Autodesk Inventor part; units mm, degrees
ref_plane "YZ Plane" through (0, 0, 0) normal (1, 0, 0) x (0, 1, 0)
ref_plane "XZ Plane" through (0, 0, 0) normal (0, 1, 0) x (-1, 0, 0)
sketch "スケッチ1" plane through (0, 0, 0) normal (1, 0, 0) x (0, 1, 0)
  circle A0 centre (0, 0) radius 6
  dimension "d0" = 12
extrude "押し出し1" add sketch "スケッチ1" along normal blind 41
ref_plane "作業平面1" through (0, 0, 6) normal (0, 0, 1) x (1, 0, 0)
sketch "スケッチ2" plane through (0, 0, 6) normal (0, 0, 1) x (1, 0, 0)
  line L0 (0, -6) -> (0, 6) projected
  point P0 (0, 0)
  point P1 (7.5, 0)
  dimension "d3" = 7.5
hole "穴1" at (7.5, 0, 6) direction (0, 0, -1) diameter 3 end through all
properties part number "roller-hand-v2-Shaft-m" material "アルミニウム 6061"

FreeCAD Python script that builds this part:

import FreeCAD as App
import Part
import Sketcher

doc = App.newDocument("Part")
body = doc.addObject("PartDesign::Body", "Body")

# Sketch on YZ plane
sketch1 = doc.addObject("Sketcher::SketchObject", "Sketch")
body.addObject(sketch1)
sketch1.AttachmentSupport = (doc.YZ_Plane, [""])
sketch1.MapMode = "FlatFace"
sketch1.addGeometry(Part.Circle(App.Vector(0, 0, 0), App.Vector(0, 0, 1), 6), False)
sketch1.addConstraint([
    Sketcher.Constraint("Coincident", 0, 3, -1, 1),
    Sketcher.Constraint("Diameter", 0, 12.0),
])
pad1 = doc.addObject("PartDesign::Pad", "Pad")
body.addObject(pad1)
pad1.Profile = sketch1
pad1.Length = 41

# Sketch on XY plane
sketch2 = doc.addObject("Sketcher::SketchObject", "Sketch001")
body.addObject(sketch2)
sketch2.AttachmentSupport = (doc.XY_Plane, [""])
sketch2.MapMode = "FlatFace"
sketch2.AttachmentOffset = App.Placement(App.Vector(0, 0, 6), App.Rotation())
sketch2.addGeometry(Part.Circle(App.Vector(7.5, 0, 0), App.Vector(0, 0, 1), 1.5), False)
sketch2.addConstraint([
    Sketcher.Constraint("PointOnObject", 0, 3, -1),
    Sketcher.Constraint("Diameter", 0, 3.0),
    Sketcher.Constraint("DistanceX", -1, 1, 0, 3, 7.5),
])
doc.recompute()
hole = doc.addObject("PartDesign::Hole", "Hole")
body.addObject(hole)
hole.Profile = sketch2
hole.ThreadType = "None"
hole.Diameter = 3
hole.DepthType = "ThroughAll"

doc.recompute()
